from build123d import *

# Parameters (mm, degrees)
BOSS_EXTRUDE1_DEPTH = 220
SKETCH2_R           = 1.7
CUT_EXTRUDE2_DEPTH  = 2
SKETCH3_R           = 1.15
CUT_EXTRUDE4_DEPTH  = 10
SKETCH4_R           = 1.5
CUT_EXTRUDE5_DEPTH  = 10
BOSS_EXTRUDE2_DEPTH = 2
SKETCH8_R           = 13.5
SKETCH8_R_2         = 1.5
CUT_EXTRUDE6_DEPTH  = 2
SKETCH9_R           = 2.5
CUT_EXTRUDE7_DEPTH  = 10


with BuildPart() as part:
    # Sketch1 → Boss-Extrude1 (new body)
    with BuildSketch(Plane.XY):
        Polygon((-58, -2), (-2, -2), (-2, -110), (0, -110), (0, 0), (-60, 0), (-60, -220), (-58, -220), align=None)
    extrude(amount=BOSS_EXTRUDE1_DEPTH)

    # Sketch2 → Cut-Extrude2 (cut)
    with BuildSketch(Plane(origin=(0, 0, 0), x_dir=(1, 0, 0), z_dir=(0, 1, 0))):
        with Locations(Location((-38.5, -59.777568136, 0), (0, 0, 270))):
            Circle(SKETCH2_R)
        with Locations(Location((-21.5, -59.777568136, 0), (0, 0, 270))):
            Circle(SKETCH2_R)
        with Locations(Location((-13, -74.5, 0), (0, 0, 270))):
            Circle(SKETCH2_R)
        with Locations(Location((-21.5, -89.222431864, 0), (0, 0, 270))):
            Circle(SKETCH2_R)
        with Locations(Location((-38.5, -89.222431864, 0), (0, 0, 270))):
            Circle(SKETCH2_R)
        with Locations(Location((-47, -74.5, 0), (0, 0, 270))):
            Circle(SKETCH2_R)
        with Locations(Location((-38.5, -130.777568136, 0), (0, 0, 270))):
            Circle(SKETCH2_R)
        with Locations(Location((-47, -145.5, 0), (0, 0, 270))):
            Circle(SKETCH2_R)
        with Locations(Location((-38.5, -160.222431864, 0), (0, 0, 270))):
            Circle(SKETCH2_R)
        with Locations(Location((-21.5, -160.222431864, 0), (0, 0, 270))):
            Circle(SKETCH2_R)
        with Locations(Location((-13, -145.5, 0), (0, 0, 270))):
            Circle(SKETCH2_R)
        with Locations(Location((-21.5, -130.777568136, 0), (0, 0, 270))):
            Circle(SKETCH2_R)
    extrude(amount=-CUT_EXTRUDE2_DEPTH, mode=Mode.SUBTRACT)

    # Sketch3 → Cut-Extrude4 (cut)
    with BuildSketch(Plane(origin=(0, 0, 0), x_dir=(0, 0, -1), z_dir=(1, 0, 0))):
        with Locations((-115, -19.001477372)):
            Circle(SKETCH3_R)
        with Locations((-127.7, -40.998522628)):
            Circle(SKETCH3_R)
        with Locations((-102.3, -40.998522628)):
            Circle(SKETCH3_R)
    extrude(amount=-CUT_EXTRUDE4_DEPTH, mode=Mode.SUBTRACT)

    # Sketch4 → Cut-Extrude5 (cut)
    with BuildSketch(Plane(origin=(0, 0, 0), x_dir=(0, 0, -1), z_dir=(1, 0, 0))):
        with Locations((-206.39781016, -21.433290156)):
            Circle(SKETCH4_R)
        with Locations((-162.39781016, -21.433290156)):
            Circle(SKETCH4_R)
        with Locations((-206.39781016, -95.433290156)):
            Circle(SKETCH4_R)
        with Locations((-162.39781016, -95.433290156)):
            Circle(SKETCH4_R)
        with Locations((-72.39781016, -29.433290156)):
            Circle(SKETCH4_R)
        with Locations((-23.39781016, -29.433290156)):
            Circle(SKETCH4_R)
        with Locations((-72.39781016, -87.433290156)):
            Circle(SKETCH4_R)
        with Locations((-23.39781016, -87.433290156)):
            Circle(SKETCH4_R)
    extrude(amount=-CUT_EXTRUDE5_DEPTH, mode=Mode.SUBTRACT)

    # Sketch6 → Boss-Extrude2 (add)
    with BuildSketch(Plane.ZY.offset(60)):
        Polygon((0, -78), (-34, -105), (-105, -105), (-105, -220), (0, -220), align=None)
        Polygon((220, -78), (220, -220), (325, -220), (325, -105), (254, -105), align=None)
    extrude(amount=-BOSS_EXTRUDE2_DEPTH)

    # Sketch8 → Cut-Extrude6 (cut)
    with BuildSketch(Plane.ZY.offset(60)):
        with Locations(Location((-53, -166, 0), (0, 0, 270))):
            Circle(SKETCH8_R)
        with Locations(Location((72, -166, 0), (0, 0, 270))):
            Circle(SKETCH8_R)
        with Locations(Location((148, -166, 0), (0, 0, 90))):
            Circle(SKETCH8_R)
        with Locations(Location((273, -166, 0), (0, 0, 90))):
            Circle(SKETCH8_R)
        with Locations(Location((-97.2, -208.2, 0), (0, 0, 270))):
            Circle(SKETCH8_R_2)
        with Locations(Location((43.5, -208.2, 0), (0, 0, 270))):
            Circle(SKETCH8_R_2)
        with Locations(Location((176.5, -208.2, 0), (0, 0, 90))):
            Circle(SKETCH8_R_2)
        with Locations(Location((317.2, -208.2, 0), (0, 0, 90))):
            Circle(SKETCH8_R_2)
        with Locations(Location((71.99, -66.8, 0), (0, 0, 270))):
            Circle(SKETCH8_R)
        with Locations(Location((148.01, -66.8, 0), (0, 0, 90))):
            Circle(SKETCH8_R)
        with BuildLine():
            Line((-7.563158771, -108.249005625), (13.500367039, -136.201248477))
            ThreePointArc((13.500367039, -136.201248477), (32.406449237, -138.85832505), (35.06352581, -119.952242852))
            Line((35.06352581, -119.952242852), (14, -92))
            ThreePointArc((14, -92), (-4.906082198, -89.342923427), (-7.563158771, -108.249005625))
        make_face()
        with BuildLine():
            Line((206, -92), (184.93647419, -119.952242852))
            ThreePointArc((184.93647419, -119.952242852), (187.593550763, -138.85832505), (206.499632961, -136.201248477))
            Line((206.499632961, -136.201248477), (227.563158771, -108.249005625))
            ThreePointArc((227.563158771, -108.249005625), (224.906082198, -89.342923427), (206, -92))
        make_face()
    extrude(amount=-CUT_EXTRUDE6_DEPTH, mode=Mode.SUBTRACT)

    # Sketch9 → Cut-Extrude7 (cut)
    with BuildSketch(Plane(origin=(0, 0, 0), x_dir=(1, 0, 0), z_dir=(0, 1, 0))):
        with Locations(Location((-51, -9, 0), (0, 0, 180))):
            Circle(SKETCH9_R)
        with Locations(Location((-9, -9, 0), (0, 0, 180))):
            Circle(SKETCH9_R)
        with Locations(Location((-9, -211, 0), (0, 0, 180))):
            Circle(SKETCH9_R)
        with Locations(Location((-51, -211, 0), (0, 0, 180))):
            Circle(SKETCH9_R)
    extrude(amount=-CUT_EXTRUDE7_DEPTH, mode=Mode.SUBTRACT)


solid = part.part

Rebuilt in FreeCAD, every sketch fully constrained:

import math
import FreeCAD as App
import Part
import Sketcher
from FreeCAD import Vector
Q = App.Units.Quantity

doc = App.newDocument("Part")
params = doc.addObject("Spreadsheet::Sheet", "Params")
for row, (alias, value) in enumerate([
    ("sketch1_width", "56 mm"),
    ("sketch1_width2", "2 mm"),
    ("sketch1_height", "108 mm"),
    ("sketch1_height2", "110 mm"),
    ("sketch1_height3", "220 mm"),
    ("pad1_length", "220 mm"),
    ("sketch2_diameter", "3.4 mm"),
    ("pocket1_length", "2 mm"),
    ("sketch3_diameter", "2.3 mm"),
    ("pocket2_length", "10 mm"),
    ("sketch4_diameter", "3 mm"),
    ("pocket3_length", "10 mm"),
    ("sketch5_width", "115 mm"),
    ("sketch5_width2", "142 mm"),
    ("sketch5_height", "71 mm"),
    ("sketch5_height2", "105 mm"),
    ("pad2_length", "2 mm"),
    ("sketch6_diameter", "27 mm"),
    ("sketch6_diameter2", "3 mm"),
    ("sketch6_length", "35 mm"),
    ("pocket4_length", "2 mm"),
    ("sketch7_diameter", "5 mm"),
    ("pocket5_length", "10 mm"),
], start=1):
    params.set(f"A{row}", alias)
    params.set(f"B{row}", "=" + value)
    params.setAlias(f"B{row}", alias)

body = doc.addObject("PartDesign::Body", "Body")

sketch1 = doc.addObject("Sketcher::SketchObject", "Sketch")
body.addObject(sketch1)
sketch1.AttachmentSupport = (doc.XY_Plane, [""])
sketch1.MapMode = "FlatFace"
sketch1.addGeometry([
    Part.LineSegment(Vector(-58, -2, 0), Vector(-2, -2, 0)),
    Part.LineSegment(Vector(-2, -2, 0), Vector(-2, -110, 0)),
    Part.LineSegment(Vector(-2, -110, 0), Vector(0, -110, 0)),
    Part.LineSegment(Vector(0, -110, 0), Vector(0, 0, 0)),
    Part.LineSegment(Vector(0, 0, 0), Vector(-60, 0, 0)),
    Part.LineSegment(Vector(-60, 0, 0), Vector(-60, -220, 0)),
    Part.LineSegment(Vector(-60, -220, 0), Vector(-58, -220, 0)),
    Part.LineSegment(Vector(-58, -220, 0), Vector(-58, -2, 0)),
], False)
sketch1.addConstraint([
    Sketcher.Constraint("Coincident", 0, 2, 1, 1),
    Sketcher.Constraint("Coincident", 1, 2, 2, 1),
    Sketcher.Constraint("Coincident", 2, 2, 3, 1),
    Sketcher.Constraint("Coincident", 3, 2, 4, 1),
    Sketcher.Constraint("Coincident", 4, 2, 5, 1),
    Sketcher.Constraint("Coincident", 5, 2, 6, 1),
    Sketcher.Constraint("Coincident", 6, 2, 7, 1),
    Sketcher.Constraint("Coincident", 7, 2, 0, 1),
    Sketcher.Constraint("Horizontal", 0),
    Sketcher.Constraint("Vertical", 1),
    Sketcher.Constraint("Horizontal", 2),
    Sketcher.Constraint("Vertical", 3),
    Sketcher.Constraint("Horizontal", 4),
    Sketcher.Constraint("Vertical", 5),
    Sketcher.Constraint("Horizontal", 6),
    Sketcher.Constraint("Vertical", 7),
    Sketcher.Constraint("Coincident", 3, 2, -1, 1),
    Sketcher.Constraint("Equal", 2, 6),
    Sketcher.Constraint("DistanceX", 0, 1, 0, 2, 56.0),
    Sketcher.Constraint("DistanceX", 2, 1, 2, 2, 2.0),
    Sketcher.Constraint("DistanceY", 1, 2, 1, 1, 108.0),
    Sketcher.Constraint("DistanceY", 3, 1, 3, 2, 110.0),
    Sketcher.Constraint("DistanceY", 5, 2, 5, 1, 220.0),
])
sketch1.setExpression("Constraints[18]", "Params.sketch1_width")
sketch1.setExpression("Constraints[19]", "Params.sketch1_width2")
sketch1.setExpression("Constraints[20]", "Params.sketch1_height")
sketch1.setExpression("Constraints[21]", "Params.sketch1_height2")
sketch1.setExpression("Constraints[22]", "Params.sketch1_height3")
pad1 = doc.addObject("PartDesign::Pad", "Pad")
body.addObject(pad1)
pad1.Profile = sketch1
pad1.setExpression("Length", "Params.pad1_length")

sketch2 = doc.addObject("Sketcher::SketchObject", "Sketch001")
body.addObject(sketch2)
sketch2.AttachmentSupport = (doc.XZ_Plane, [""])
sketch2.MapMode = "FlatFace"
sketch2.addGeometry([
    Part.Circle(Vector(-38.5, 59.8, 0), Vector(0, 0, 1), 1.7),
    Part.Circle(Vector(-21.5, 59.8, 0), Vector(0, 0, 1), 1.7),
    Part.Circle(Vector(-13, 74.5, 0), Vector(0, 0, 1), 1.7),
    Part.Circle(Vector(-21.5, 89.2, 0), Vector(0, 0, 1), 1.7),
    Part.Circle(Vector(-38.5, 89.2, 0), Vector(0, 0, 1), 1.7),
    Part.Circle(Vector(-47, 74.5, 0), Vector(0, 0, 1), 1.7),
    Part.Circle(Vector(-38.5, 130.8, 0), Vector(0, 0, 1), 1.7),
    Part.Circle(Vector(-47, 145.5, 0), Vector(0, 0, 1), 1.7),
    Part.Circle(Vector(-38.5, 160.2, 0), Vector(0, 0, 1), 1.7),
    Part.Circle(Vector(-21.5, 160.2, 0), Vector(0, 0, 1), 1.7),
    Part.Circle(Vector(-13, 145.5, 0), Vector(0, 0, 1), 1.7),
    Part.Circle(Vector(-21.5, 130.8, 0), Vector(0, 0, 1), 1.7),
], False)
sketch2.addConstraint([
    Sketcher.Constraint("Equal", 0, 1),
    Sketcher.Constraint("Equal", 1, 2),
    Sketcher.Constraint("Equal", 2, 3),
    Sketcher.Constraint("Equal", 3, 4),
    Sketcher.Constraint("Equal", 4, 5),
    Sketcher.Constraint("Equal", 5, 6),
    Sketcher.Constraint("Equal", 6, 7),
    Sketcher.Constraint("Equal", 7, 8),
    Sketcher.Constraint("Equal", 8, 9),
    Sketcher.Constraint("Equal", 9, 10),
    Sketcher.Constraint("Equal", 10, 11),
    Sketcher.Constraint("Horizontal", 0, 3, 1, 3),
    Sketcher.Constraint("Horizontal", 3, 3, 4, 3),
    Sketcher.Constraint("Horizontal", 2, 3, 5, 3),
    Sketcher.Constraint("Horizontal", 8, 3, 9, 3),
    Sketcher.Constraint("Horizontal", 7, 3, 10, 3),
    Sketcher.Constraint("Horizontal", 6, 3, 11, 3),
    Sketcher.Constraint("Vertical", 1, 3, 3, 3),
    Sketcher.Constraint("Vertical", 0, 3, 4, 3),
    Sketcher.Constraint("Vertical", 4, 3, 6, 3),
    Sketcher.Constraint("Vertical", 5, 3, 7, 3),
    Sketcher.Constraint("Vertical", 6, 3, 8, 3),
    Sketcher.Constraint("Vertical", 3, 3, 9, 3),
    Sketcher.Constraint("Vertical", 2, 3, 10, 3),
    Sketcher.Constraint("Vertical", 9, 3, 11, 3),
    Sketcher.Constraint("Diameter", 0, 3.4),
    Sketcher.Constraint("DistanceX", 2, 3, -1, 1, 13.0),
    Sketcher.Constraint("DistanceX", 5, 3, -1, 1, 47.0),
    Sketcher.Constraint("DistanceX", 0, 3, 1, 3, 17.0),
    Sketcher.Constraint("DistanceY", 0, 3, 6, 3, 71.0),
    Sketcher.Constraint("DistanceY", 5, 3, 7, 3, 71.0),
    Sketcher.Constraint("DistanceY", 4, 3, 8, 3, 71.0),
    Sketcher.Constraint("DistanceX", 0, 3, -1, 1, 38.5),
    Sketcher.Constraint("DistanceY", -1, 1, 2, 3, 74.5),
    Sketcher.Constraint("DistanceY", -1, 1, 0, 3, 59.777568),
    Sketcher.Constraint("DistanceY", -1, 1, 3, 3, 89.222432),
])
sketch2.setExpression("Constraints[25]", "Params.sketch2_diameter")
pocket1 = doc.addObject("PartDesign::Pocket", "Pocket")
body.addObject(pocket1)
pocket1.Profile = sketch2
pocket1.setExpression("Length", "Params.pocket1_length")
pocket1.Reversed = True

sketch3 = doc.addObject("Sketcher::SketchObject", "Sketch002")
body.addObject(sketch3)
sketch3.AttachmentSupport = (doc.YZ_Plane, [""])
sketch3.MapMode = "FlatFace"
sketch3.addGeometry([
    Part.Circle(Vector(-19, 115, 0), Vector(0, 0, 1), 1.1),
    Part.Circle(Vector(-41, 127.7, 0), Vector(0, 0, 1), 1.1),
    Part.Circle(Vector(-41, 102.3, 0), Vector(0, 0, 1), 1.1),
], False)
sketch3.addConstraint([
    Sketcher.Constraint("Equal", 0, 1),
    Sketcher.Constraint("Equal", 1, 2),
    Sketcher.Constraint("Vertical", 1, 3, 2, 3),
    Sketcher.Constraint("Diameter", 0, 2.3),
    Sketcher.Constraint("DistanceY", -1, 1, 0, 3, 115.0),
    Sketcher.Constraint("DistanceY", -1, 1, 1, 3, 127.7),
    Sketcher.Constraint("DistanceY", -1, 1, 2, 3, 102.3),
    Sketcher.Constraint("DistanceX", 0, 3, -1, 1, 19.001477),
    Sketcher.Constraint("DistanceX", 1, 3, -1, 1, 40.998523),
])
sketch3.setExpression("Constraints[3]", "Params.sketch3_diameter")
pocket2 = doc.addObject("PartDesign::Pocket", "Pocket001")
body.addObject(pocket2)
pocket2.Profile = sketch3
pocket2.setExpression("Length", "Params.pocket2_length")

sketch4 = doc.addObject("Sketcher::SketchObject", "Sketch003")
body.addObject(sketch4)
sketch4.AttachmentSupport = (doc.YZ_Plane, [""])
sketch4.MapMode = "FlatFace"
sketch4.addGeometry([
    Part.Circle(Vector(-21.4, 206.4, 0), Vector(0, 0, 1), 1.5),
    Part.Circle(Vector(-21.4, 162.4, 0), Vector(0, 0, 1), 1.5),
    Part.Circle(Vector(-95.4, 206.4, 0), Vector(0, 0, 1), 1.5),
    Part.Circle(Vector(-95.4, 162.4, 0), Vector(0, 0, 1), 1.5),
    Part.Circle(Vector(-29.4, 72.4, 0), Vector(0, 0, 1), 1.5),
    Part.Circle(Vector(-29.4, 23.4, 0), Vector(0, 0, 1), 1.5),
    Part.Circle(Vector(-87.4, 72.4, 0), Vector(0, 0, 1), 1.5),
    Part.Circle(Vector(-87.4, 23.4, 0), Vector(0, 0, 1), 1.5),
], False)
sketch4.addConstraint([
    Sketcher.Constraint("Equal", 0, 1),
    Sketcher.Constraint("Equal", 1, 2),
    Sketcher.Constraint("Equal", 2, 3),
    Sketcher.Constraint("Equal", 3, 4),
    Sketcher.Constraint("Equal", 4, 5),
    Sketcher.Constraint("Equal", 5, 6),
    Sketcher.Constraint("Equal", 6, 7),
    Sketcher.Constraint("Horizontal", 0, 3, 2, 3),
    Sketcher.Constraint("Horizontal", 1, 3, 3, 3),
    Sketcher.Constraint("Horizontal", 4, 3, 6, 3),
    Sketcher.Constraint("Horizontal", 5, 3, 7, 3),
    Sketcher.Constraint("Vertical", 0, 3, 1, 3),
    Sketcher.Constraint("Vertical", 2, 3, 3, 3),
    Sketcher.Constraint("Vertical", 4, 3, 5, 3),
    Sketcher.Constraint("Vertical", 6, 3, 7, 3),
    Sketcher.Constraint("Diameter", 0, 3.0),
    Sketcher.Constraint("DistanceY", 1, 3, 0, 3, 44.0),
    Sketcher.Constraint("DistanceX", 2, 3, 0, 3, 74.0),
    Sketcher.Constraint("DistanceX", 4, 3, 1, 3, 8.0),
    Sketcher.Constraint("DistanceY", 4, 3, 1, 3, 90.0),
    Sketcher.Constraint("DistanceY", 5, 3, 4, 3, 49.0),
    Sketcher.Constraint("DistanceX", 6, 3, 4, 3, 58.0),
    Sketcher.Constraint("DistanceX", 0, 3, -1, 1, 21.43329),
    Sketcher.Constraint("DistanceY", -1, 1, 0, 3, 206.39781),
])
sketch4.setExpression("Constraints[15]", "Params.sketch4_diameter")
pocket3 = doc.addObject("PartDesign::Pocket", "Pocket002")
body.addObject(pocket3)
pocket3.Profile = sketch4
pocket3.setExpression("Length", "Params.pocket3_length")

sketch5 = doc.addObject("Sketcher::SketchObject", "Sketch004")
body.addObject(sketch5)
sketch5.AttachmentSupport = (doc.YZ_Plane, [""])
sketch5.MapMode = "FlatFace"
sketch5.AttachmentOffset = App.Placement(Vector(0, 0, -60), App.Rotation())
sketch5.addGeometry([
    Part.LineSegment(Vector(-78, 0, 0), Vector(-105, -34, 0)),
    Part.LineSegment(Vector(-105, -34, 0), Vector(-105, -105, 0)),
    Part.LineSegment(Vector(-105, -105, 0), Vector(-220, -105, 0)),
    Part.LineSegment(Vector(-220, -105, 0), Vector(-220, 0, 0)),
    Part.LineSegment(Vector(-220, 0, 0), Vector(-78, 0, 0)),
    Part.LineSegment(Vector(-78, 220, 0), Vector(-220, 220, 0)),
    Part.LineSegment(Vector(-220, 220, 0), Vector(-220, 325, 0)),
    Part.LineSegment(Vector(-220, 325, 0), Vector(-105, 325, 0)),
    Part.LineSegment(Vector(-105, 325, 0), Vector(-105, 254, 0)),
    Part.LineSegment(Vector(-105, 254, 0), Vector(-78, 220, 0)),
], False)
sketch5.addConstraint([
    Sketcher.Constraint("Coincident", 0, 2, 1, 1),
    Sketcher.Constraint("Coincident", 1, 2, 2, 1),
    Sketcher.Constraint("Coincident", 2, 2, 3, 1),
    Sketcher.Constraint("Coincident", 3, 2, 4, 1),
    Sketcher.Constraint("Coincident", 4, 2, 0, 1),
    Sketcher.Constraint("Coincident", 5, 2, 6, 1),
    Sketcher.Constraint("Coincident", 6, 2, 7, 1),
    Sketcher.Constraint("Coincident", 7, 2, 8, 1),
    Sketcher.Constraint("Coincident", 8, 2, 9, 1),
    Sketcher.Constraint("Coincident", 9, 2, 5, 1),
    Sketcher.Constraint("Vertical", 1),
    Sketcher.Constraint("Horizontal", 2),
    Sketcher.Constraint("Vertical", 3),
    Sketcher.Constraint("Horizontal", 4),
    Sketcher.Constraint("Horizontal", 5),
    Sketcher.Constraint("Vertical", 6),
    Sketcher.Constraint("Horizontal", 7),
    Sketcher.Constraint("Vertical", 8),
    Sketcher.Constraint("PointOnObject", 3, 2, -1),
    Sketcher.Constraint("Vertical", 3, 2, 5, 2),
    Sketcher.Constraint("Vertical", 1, 2, 7, 2),
    Sketcher.Constraint("Vertical", 4, 2, 9, 2),
    Sketcher.Constraint("Equal", 3, 6),
    Sketcher.Constraint("Equal", 1, 8),
    Sketcher.Constraint("DistanceX", 2, 2, 2, 1, 115.0),
    Sketcher.Constraint("DistanceX", 4, 1, 4, 2, 142.0),
    Sketcher.Constraint("DistanceY", 1, 2, 1, 1, 71.0),
    Sketcher.Constraint("DistanceY", 3, 1, 3, 2, 105.0),
    Sketcher.Constraint("DistanceX", 0, 2, -1, 1, 105.0),
    Sketcher.Constraint("DistanceY", -1, 1, 5, 2, 220.0),
])
sketch5.setExpression("Constraints[24]", "Params.sketch5_width")
sketch5.setExpression("Constraints[25]", "Params.sketch5_width2")
sketch5.setExpression("Constraints[26]", "Params.sketch5_height")
sketch5.setExpression("Constraints[27]", "Params.sketch5_height2")
pad2 = doc.addObject("PartDesign::Pad", "Pad001")
body.addObject(pad2)
pad2.Profile = sketch5
pad2.setExpression("Length", "Params.pad2_length")

sketch6 = doc.addObject("Sketcher::SketchObject", "Sketch005")
body.addObject(sketch6)
sketch6.AttachmentSupport = (doc.YZ_Plane, [""])
sketch6.MapMode = "FlatFace"
sketch6.AttachmentOffset = App.Placement(Vector(0, 0, -60), App.Rotation())
sketch6.addGeometry([
    Part.Circle(Vector(-166, -53, 0), Vector(0, 0, 1), 13.5),
    Part.Circle(Vector(-166, 72, 0), Vector(0, 0, 1), 13.5),
    Part.Circle(Vector(-166, 148, 0), Vector(0, 0, 1), 13.5),
    Part.Circle(Vector(-166, 273, 0), Vector(0, 0, 1), 13.5),
    Part.Circle(Vector(-208.2, -97.2, 0), Vector(0, 0, 1), 1.5),
    Part.Circle(Vector(-208.2, 43.5, 0), Vector(0, 0, 1), 1.5),
    Part.Circle(Vector(-208.2, 176.5, 0), Vector(0, 0, 1), 1.5),
    Part.Circle(Vector(-208.2, 317.2, 0), Vector(0, 0, 1), 1.5),
    Part.Circle(Vector(-66.8, 72, 0), Vector(0, 0, 1), 13.5),
    Part.Circle(Vector(-66.8, 148, 0), Vector(0, 0, 1), 13.5),
    Part.LineSegment(Vector(-108.2, -7.6, 0), Vector(-136.2, 13.5, 0)),
    Part.ArcOfCircle(Part.Circle(Vector(-128.1, 24.3, 0), Vector(0, 0, 1), 13.5), math.radians(53), math.radians(233)),
    Part.LineSegment(Vector(-120, 35.1, 0), Vector(-92, 14, 0)),
    Part.ArcOfCircle(Part.Circle(Vector(-100.1, 3.2, 0), Vector(0, 0, 1), 13.5), math.radians(-127), math.radians(53)),
    Part.LineSegment(Vector(-92, 206, 0), Vector(-120, 184.9, 0)),
    Part.ArcOfCircle(Part.Circle(Vector(-128.1, 195.7, 0), Vector(0, 0, 1), 13.5), math.radians(127), math.radians(307)),
    Part.LineSegment(Vector(-136.2, 206.5, 0), Vector(-108.2, 227.6, 0)),
    Part.ArcOfCircle(Part.Circle(Vector(-100.1, 216.8, 0), Vector(0, 0, 1), 13.5), math.radians(-53), math.radians(127)),
], False)
sketch6.addConstraint([
    Sketcher.Constraint("Tangent", 10, 2, 11, 2),
    Sketcher.Constraint("Tangent", 11, 1, 12, 1),
    Sketcher.Constraint("Tangent", 12, 2, 13, 2),
    Sketcher.Constraint("Tangent", 13, 1, 10, 1),
    Sketcher.Constraint("Tangent", 14, 2, 15, 2),
    Sketcher.Constraint("Tangent", 15, 1, 16, 1),
    Sketcher.Constraint("Tangent", 16, 2, 17, 2),
    Sketcher.Constraint("Tangent", 17, 1, 14, 1),
    Sketcher.Constraint("Equal", 0, 1),
    Sketcher.Constraint("Equal", 1, 2),
    Sketcher.Constraint("Equal", 2, 3),
    Sketcher.Constraint("Equal", 4, 5),
    Sketcher.Constraint("Equal", 5, 6),
    Sketcher.Constraint("Equal", 6, 7),
    Sketcher.Constraint("Equal", 3, 8),
    Sketcher.Constraint("Equal", 8, 9),
    Sketcher.Constraint("Equal", 9, 11),
    Sketcher.Constraint("Equal", 11, 13),
    Sketcher.Constraint("Equal", 13, 15),
    Sketcher.Constraint("Equal", 15, 17),
    Sketcher.Constraint("Vertical", 0, 3, 1, 3),
    Sketcher.Constraint("Vertical", 1, 3, 2, 3),
    Sketcher.Constraint("Vertical", 2, 3, 3, 3),
    Sketcher.Constraint("Vertical", 4, 3, 5, 3),
    Sketcher.Constraint("Vertical", 5, 3, 6, 3),
    Sketcher.Constraint("Vertical", 6, 3, 7, 3),
    Sketcher.Constraint("Vertical", 8, 3, 9, 3),
    Sketcher.Constraint("Vertical", 11, 3, 15, 3),
    Sketcher.Constraint("Vertical", 13, 3, 17, 3),
    Sketcher.Constraint("Vertical", 11, 1, 14, 2),
    Sketcher.Constraint("Diameter", 0, 27.0),
    Sketcher.Constraint("Diameter", 4, 3.0),
    Sketcher.Constraint("Angle", 10, Q("143 deg")),
    Sketcher.Constraint("Distance", 10, 35.0),
    Sketcher.Constraint("DistanceX", 0, 3, -1, 1, 166.0),
    Sketcher.Constraint("DistanceY", 0, 3, -1, 1, 53.0),
    Sketcher.Constraint("DistanceY", -1, 1, 1, 3, 72.0),
    Sketcher.Constraint("DistanceY", -1, 1, 2, 3, 148.0),
    Sketcher.Constraint("DistanceY", -1, 1, 3, 3, 273.0),
    Sketcher.Constraint("DistanceX", 12, 2, -1, 1, 92.0),
    Sketcher.Constraint("DistanceY", -1, 1, 12, 2, 14.0),
    Sketcher.Constraint("DistanceY", -1, 1, 17, 1, 206.0),
    Sketcher.Constraint("DistanceY", 5, 3, 6, 3, 133.0),
    Sketcher.Constraint("DistanceX", 4, 3, -1, 1, 208.2),
    Sketcher.Constraint("DistanceY", 4, 3, -1, 1, 97.2),
    Sketcher.Constraint("DistanceY", -1, 1, 5, 3, 43.5),
    Sketcher.Constraint("DistanceY", -1, 1, 7, 3, 317.2),
    Sketcher.Constraint("DistanceX", 8, 3, -1, 1, 66.8),
    Sketcher.Constraint("DistanceY", -1, 1, 8, 3, 71.99),
    Sketcher.Constraint("DistanceY", -1, 1, 9, 3, 148.01),
])
sketch6.setExpression("Constraints[30]", "Params.sketch6_diameter")
sketch6.setExpression("Constraints[31]", "Params.sketch6_diameter2")
sketch6.setExpression("Constraints[33]", "Params.sketch6_length")
pocket4 = doc.addObject("PartDesign::Pocket", "Pocket003")
body.addObject(pocket4)
pocket4.Profile = sketch6
pocket4.setExpression("Length", "Params.pocket4_length")
pocket4.Reversed = True

sketch7 = doc.addObject("Sketcher::SketchObject", "Sketch006")
body.addObject(sketch7)
sketch7.AttachmentSupport = (doc.XZ_Plane, [""])
sketch7.MapMode = "FlatFace"
sketch7.addGeometry([
    Part.Circle(Vector(-51, 9, 0), Vector(0, 0, 1), 2.5),
    Part.Circle(Vector(-9, 9, 0), Vector(0, 0, 1), 2.5),
    Part.Circle(Vector(-9, 211, 0), Vector(0, 0, 1), 2.5),
    Part.Circle(Vector(-51, 211, 0), Vector(0, 0, 1), 2.5),
], False)
sketch7.addConstraint([
    Sketcher.Constraint("Equal", 0, 1),
    Sketcher.Constraint("Equal", 1, 2),
    Sketcher.Constraint("Equal", 2, 3),
    Sketcher.Constraint("Horizontal", 0, 3, 1, 3),
    Sketcher.Constraint("Horizontal", 2, 3, 3, 3),
    Sketcher.Constraint("Vertical", 1, 3, 2, 3),
    Sketcher.Constraint("Vertical", 0, 3, 3, 3),
    Sketcher.Constraint("Diameter", 0, 5.0),
    Sketcher.Constraint("DistanceX", 0, 3, -1, 1, 51.0),
    Sketcher.Constraint("DistanceY", -1, 1, 0, 3, 9.0),
    Sketcher.Constraint("DistanceX", 1, 3, -1, 1, 9.0),
    Sketcher.Constraint("DistanceY", -1, 1, 2, 3, 211.0),
])
sketch7.setExpression("Constraints[7]", "Params.sketch7_diameter")
pocket5 = doc.addObject("PartDesign::Pocket", "Pocket004")
body.addObject(pocket5)
pocket5.Profile = sketch7
pocket5.setExpression("Length", "Params.pocket5_length")
pocket5.Reversed = True

doc.recompute()
